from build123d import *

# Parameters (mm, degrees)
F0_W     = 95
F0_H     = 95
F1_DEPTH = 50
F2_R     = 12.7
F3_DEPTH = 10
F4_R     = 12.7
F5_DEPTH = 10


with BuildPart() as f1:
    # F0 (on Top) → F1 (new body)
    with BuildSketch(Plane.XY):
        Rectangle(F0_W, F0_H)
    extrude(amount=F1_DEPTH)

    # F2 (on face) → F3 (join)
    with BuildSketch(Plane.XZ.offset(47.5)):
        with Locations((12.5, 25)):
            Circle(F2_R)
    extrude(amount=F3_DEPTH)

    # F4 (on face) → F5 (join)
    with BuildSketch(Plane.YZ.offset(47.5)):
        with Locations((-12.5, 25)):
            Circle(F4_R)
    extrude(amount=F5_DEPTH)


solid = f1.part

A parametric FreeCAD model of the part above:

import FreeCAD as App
import Part
import Sketcher

V = App.Vector
Q = App.Units.Quantity

doc = App.newDocument("Part")
body = doc.addObject("PartDesign::Body", "Body")

sketch1 = body.newObject("Sketcher::SketchObject", "Sketch")
sketch1.AttachmentSupport = (doc.getObject("XY_Plane"), [""])
sketch1.MapMode = "FlatFace"
sketch1.addGeometry(Part.LineSegment(V(-48, 48, 0), V(-48, -48, 0)), False)
sketch1.addGeometry(Part.LineSegment(V(-48, -48, 0), V(48, -48, 0)), False)
sketch1.addGeometry(Part.LineSegment(V(48, -48, 0), V(48, 48, 0)), False)
sketch1.addGeometry(Part.LineSegment(V(48, 48, 0), V(-48, 48, 0)), False)
sketch1.addConstraint(Sketcher.Constraint("Coincident", 0, 2, 1, 1))
sketch1.addConstraint(Sketcher.Constraint("Coincident", 1, 2, 2, 1))
sketch1.addConstraint(Sketcher.Constraint("Coincident", 2, 2, 3, 1))
sketch1.addConstraint(Sketcher.Constraint("Coincident", 3, 2, 0, 1))
sketch1.addConstraint(Sketcher.Constraint("Vertical", 0))
sketch1.addConstraint(Sketcher.Constraint("Horizontal", 1))
sketch1.addConstraint(Sketcher.Constraint("Vertical", 2))
sketch1.addConstraint(Sketcher.Constraint("Horizontal", 3))
sketch1.addConstraint(Sketcher.Constraint("Symmetric", 0, 2, 2, 2, -1, 1))
sketch1.addConstraint(Sketcher.Constraint("Equal", 3, 0))
sketch1.addConstraint(Sketcher.Constraint("DistanceX", 1, 1, 1, 2, Q("95 mm")))
pad1 = body.newObject("PartDesign::Pad", "Pad")
pad1.Profile = sketch1
pad1.Length = 50

sketch2 = body.newObject("Sketcher::SketchObject", "Sketch001")
sketch2.AttachmentSupport = (doc.getObject("XZ_Plane"), [""])
sketch2.MapMode = "FlatFace"
sketch2.AttachmentOffset = App.Placement(V(0, 0, 47.5), App.Rotation())
sketch2.addGeometry(Part.Circle(V(12, 25, 0), V(0, 0, 1), 13), False)
sketch2.addConstraint(Sketcher.Constraint("Diameter", 0, Q("25.4 mm")))
sketch2.addConstraint(Sketcher.Constraint("DistanceY", -1, 1, 0, 3, Q("25 mm")))
sketch2.addConstraint(Sketcher.Constraint("DistanceX", -1, 1, 0, 3, Q("12.5 mm")))
pad2 = body.newObject("PartDesign::Pad", "Pad001")
pad2.Profile = sketch2
pad2.Length = 10

sketch3 = body.newObject("Sketcher::SketchObject", "Sketch002")
sketch3.AttachmentSupport = (doc.getObject("YZ_Plane"), [""])
sketch3.MapMode = "FlatFace"
sketch3.AttachmentOffset = App.Placement(V(0, 0, 47.5), App.Rotation())
sketch3.addGeometry(Part.Circle(V(-12, 25, 0), V(0, 0, 1), 13), False)
sketch3.addConstraint(Sketcher.Constraint("Diameter", 0, Q("25.4 mm")))
sketch3.addConstraint(Sketcher.Constraint("DistanceY", -1, 1, 0, 3, Q("25 mm")))
sketch3.addConstraint(Sketcher.Constraint("DistanceX", 0, 3, -1, 1, Q("12.5 mm")))
pad3 = body.newObject("PartDesign::Pad", "Pad002")
pad3.Profile = sketch3
pad3.Length = 10

doc.recompute()
